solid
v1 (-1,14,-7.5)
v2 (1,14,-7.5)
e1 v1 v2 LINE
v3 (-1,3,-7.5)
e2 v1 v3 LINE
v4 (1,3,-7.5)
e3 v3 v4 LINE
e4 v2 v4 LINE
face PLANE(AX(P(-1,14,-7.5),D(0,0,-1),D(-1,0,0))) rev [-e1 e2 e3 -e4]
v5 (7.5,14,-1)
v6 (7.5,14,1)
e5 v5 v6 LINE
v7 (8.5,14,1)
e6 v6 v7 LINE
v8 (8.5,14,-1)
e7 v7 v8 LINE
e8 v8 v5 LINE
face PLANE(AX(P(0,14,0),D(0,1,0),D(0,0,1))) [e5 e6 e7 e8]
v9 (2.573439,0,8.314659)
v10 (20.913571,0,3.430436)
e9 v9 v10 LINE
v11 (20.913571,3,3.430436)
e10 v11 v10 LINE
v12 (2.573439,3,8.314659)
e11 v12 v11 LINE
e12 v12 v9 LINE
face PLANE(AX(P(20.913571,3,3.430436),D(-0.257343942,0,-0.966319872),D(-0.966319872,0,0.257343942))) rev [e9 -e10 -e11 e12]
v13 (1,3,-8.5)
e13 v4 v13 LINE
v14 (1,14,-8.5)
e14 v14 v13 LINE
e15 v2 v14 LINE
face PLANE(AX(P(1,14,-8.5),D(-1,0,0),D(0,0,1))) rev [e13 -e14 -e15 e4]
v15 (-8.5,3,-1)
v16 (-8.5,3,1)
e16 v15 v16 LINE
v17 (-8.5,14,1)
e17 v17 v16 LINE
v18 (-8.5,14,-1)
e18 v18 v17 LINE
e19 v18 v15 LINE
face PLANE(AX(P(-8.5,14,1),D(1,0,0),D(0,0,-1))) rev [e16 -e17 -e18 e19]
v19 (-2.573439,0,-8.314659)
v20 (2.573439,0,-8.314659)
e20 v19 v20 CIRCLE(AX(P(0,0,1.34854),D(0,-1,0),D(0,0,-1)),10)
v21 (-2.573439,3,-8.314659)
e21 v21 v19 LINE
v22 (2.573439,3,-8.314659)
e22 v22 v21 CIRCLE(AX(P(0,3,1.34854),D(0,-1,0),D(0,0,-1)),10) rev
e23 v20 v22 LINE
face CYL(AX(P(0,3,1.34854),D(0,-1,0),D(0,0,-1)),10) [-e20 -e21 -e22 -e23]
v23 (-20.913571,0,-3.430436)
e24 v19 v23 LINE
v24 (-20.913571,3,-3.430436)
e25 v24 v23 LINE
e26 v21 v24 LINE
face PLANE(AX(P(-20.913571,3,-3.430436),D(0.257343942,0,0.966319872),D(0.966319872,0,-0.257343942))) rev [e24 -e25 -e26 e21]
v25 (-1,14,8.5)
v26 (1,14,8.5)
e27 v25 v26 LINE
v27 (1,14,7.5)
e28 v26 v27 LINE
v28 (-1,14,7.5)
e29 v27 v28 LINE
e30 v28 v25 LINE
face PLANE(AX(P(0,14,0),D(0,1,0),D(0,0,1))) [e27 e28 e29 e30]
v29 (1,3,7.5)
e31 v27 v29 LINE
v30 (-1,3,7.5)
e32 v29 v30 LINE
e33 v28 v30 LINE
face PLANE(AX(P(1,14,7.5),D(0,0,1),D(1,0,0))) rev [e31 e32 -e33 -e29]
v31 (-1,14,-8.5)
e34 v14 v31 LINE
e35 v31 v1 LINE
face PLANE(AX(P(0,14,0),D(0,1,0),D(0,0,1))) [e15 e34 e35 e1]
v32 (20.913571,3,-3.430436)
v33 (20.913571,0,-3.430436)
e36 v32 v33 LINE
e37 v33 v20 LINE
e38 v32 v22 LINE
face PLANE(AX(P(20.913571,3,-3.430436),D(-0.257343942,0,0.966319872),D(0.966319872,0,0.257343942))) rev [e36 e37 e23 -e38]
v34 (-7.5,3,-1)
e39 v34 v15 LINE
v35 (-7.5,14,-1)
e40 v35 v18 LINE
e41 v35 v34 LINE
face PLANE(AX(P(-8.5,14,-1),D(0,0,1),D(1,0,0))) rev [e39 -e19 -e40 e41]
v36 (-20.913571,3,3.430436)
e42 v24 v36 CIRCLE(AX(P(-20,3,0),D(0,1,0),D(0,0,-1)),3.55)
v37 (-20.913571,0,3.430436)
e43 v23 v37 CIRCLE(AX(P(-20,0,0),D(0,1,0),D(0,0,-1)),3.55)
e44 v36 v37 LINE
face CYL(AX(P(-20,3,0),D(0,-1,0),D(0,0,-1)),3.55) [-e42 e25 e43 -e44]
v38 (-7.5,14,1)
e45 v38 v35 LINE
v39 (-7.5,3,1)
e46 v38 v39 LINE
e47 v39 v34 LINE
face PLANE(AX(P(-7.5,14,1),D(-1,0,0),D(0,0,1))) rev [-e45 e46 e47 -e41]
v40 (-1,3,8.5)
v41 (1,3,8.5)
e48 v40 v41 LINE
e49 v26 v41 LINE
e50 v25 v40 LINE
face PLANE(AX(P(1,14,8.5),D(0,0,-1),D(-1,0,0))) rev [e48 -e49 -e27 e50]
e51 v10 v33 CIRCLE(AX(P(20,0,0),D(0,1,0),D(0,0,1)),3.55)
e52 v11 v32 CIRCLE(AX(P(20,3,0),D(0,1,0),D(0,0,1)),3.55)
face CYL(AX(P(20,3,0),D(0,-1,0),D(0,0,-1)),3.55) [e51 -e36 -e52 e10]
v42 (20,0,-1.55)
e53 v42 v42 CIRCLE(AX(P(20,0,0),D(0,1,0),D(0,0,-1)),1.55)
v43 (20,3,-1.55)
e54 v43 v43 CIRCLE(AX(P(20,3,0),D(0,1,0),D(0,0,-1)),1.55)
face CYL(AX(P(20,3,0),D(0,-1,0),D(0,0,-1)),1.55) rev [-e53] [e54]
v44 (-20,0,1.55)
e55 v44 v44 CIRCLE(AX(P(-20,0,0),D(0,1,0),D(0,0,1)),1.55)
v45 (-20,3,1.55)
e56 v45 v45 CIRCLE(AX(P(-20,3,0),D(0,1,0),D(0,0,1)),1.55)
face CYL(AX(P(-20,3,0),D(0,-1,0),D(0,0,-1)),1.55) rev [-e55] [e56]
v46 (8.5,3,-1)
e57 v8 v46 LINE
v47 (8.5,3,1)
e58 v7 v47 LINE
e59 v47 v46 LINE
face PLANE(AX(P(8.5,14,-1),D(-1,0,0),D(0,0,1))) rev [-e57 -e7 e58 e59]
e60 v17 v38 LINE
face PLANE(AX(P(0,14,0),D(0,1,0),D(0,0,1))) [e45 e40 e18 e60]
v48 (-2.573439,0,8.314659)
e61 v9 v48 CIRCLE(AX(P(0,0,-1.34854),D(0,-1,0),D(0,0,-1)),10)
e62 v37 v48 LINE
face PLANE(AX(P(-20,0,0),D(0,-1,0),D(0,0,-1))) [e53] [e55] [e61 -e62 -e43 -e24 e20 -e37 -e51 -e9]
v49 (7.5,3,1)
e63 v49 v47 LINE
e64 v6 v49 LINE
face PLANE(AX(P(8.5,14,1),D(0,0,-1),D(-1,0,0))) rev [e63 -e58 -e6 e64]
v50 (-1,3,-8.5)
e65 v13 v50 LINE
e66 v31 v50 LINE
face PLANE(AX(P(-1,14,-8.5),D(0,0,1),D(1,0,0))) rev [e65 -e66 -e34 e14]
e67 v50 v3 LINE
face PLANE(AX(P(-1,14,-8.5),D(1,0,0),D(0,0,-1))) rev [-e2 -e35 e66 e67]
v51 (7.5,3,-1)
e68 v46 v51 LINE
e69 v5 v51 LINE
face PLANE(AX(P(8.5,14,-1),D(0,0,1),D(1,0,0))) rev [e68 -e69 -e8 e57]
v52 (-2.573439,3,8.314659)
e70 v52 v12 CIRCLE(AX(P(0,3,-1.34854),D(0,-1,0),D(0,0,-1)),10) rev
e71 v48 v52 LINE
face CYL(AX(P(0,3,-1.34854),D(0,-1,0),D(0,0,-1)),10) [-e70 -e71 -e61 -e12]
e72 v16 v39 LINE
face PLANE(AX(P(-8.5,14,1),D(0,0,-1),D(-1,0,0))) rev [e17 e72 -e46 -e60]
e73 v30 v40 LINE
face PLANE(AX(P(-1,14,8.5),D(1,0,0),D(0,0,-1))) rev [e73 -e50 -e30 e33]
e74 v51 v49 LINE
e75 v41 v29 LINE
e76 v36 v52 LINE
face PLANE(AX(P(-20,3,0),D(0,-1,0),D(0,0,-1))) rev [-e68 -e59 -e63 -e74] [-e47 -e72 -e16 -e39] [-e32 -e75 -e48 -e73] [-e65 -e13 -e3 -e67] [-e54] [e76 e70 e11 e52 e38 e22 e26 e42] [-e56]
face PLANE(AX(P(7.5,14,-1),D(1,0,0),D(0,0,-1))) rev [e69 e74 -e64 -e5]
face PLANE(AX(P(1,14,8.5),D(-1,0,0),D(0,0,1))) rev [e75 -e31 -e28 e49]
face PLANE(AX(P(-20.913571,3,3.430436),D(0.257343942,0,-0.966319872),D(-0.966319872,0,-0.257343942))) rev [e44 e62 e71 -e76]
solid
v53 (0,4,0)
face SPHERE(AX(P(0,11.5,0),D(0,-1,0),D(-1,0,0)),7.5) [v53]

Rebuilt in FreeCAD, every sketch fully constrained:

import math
import FreeCAD as App
import Part
import Sketcher
from FreeCAD import Vector


def edges_at(feature, points):
    """Names of the edges that pass closest to the given points."""
    edges = feature.Shape.Edges
    near = lambda p: min(range(len(edges)), key=lambda i: edges[i].distToShape(Part.Vertex(*p))[0])
    return sorted({f"Edge{near(p) + 1}" for p in points})

doc = App.newDocument("Part")
params = doc.addObject("Spreadsheet::Sheet", "Params")
for row, (alias, value) in enumerate([
    ("sketch1_diameter", "3.1 mm"),
    ("sketch1_radius", "3.55 mm"),
    ("pad1_length", "3 mm"),
    ("fillet_radius", "10 mm"),
    ("sketch2_width", "2 mm"),
    ("sketch2_width2", "1 mm"),
    ("pad2_length", "11 mm"),
    ("sketch3_radius", "7.5 mm"),
    ("revolution_angle", "360 deg"),
], start=1):
    params.set(f"A{row}", alias)
    params.set(f"B{row}", "=" + value)
    params.setAlias(f"B{row}", alias)

body = doc.addObject("PartDesign::Body", "Body")

sketch1 = doc.addObject("Sketcher::SketchObject", "Sketch")
body.addObject(sketch1)
sketch1.AttachmentSupport = (doc.XZ_Plane, [""])
sketch1.MapMode = "FlatFace"
sketch1.addGeometry([
    Part.LineSegment(Vector(0, -9, 0), Vector(-20.9, -3.4, 0)),
    Part.ArcOfCircle(Part.Circle(Vector(-20, 0, 0), Vector(0, 0, 1), 3.5), math.radians(105), math.radians(255)),
    Part.LineSegment(Vector(-20.9, 3.4, 0), Vector(0, 9, 0)),
    Part.LineSegment(Vector(0, 9, 0), Vector(20.9, 3.4, 0)),
    Part.ArcOfCircle(Part.Circle(Vector(20, 0, 0), Vector(0, 0, 1), 3.5), math.radians(-75), math.radians(75)),
    Part.LineSegment(Vector(20.9, -3.4, 0), Vector(0, -9, 0)),
    Part.Circle(Vector(20, 0, 0), Vector(0, 0, 1), 1.6),
    Part.Circle(Vector(-20, 0, 0), Vector(0, 0, 1), 1.6),
], False)
sketch1.addConstraint([
    Sketcher.Constraint("Tangent", 0, 2, 1, 2),
    Sketcher.Constraint("Tangent", 1, 1, 2, 1),
    Sketcher.Constraint("Coincident", 2, 2, 3, 1),
    Sketcher.Constraint("Tangent", 3, 2, 4, 2),
    Sketcher.Constraint("Tangent", 4, 1, 5, 1),
    Sketcher.Constraint("Coincident", 5, 2, 0, 1),
    Sketcher.Constraint("Coincident", 6, 3, 4, 3),
    Sketcher.Constraint("Coincident", 7, 3, 1, 3),
    Sketcher.Constraint("Equal", 1, 4),
    Sketcher.Constraint("Equal", 6, 7),
    Sketcher.Constraint("Symmetric", 1, 3, 4, 3, -1, 1),
    Sketcher.Constraint("Symmetric", 2, 2, 5, 2, -1, 1),
    Sketcher.Constraint("Symmetric", 1, 1, 3, 2, -2),
    Sketcher.Constraint("Diameter", 6, 3.1),
    Sketcher.Constraint("Radius", 1, 3.55),
    Sketcher.Constraint("DistanceX", 1, 3, -1, 1, 20.0),
    Sketcher.Constraint("DistanceY", -1, 1, 2, 2, 9.0),
])
sketch1.setExpression("Constraints[13]", "Params.sketch1_diameter")
sketch1.setExpression("Constraints[14]", "Params.sketch1_radius")
pad1 = doc.addObject("PartDesign::Pad", "Pad")
body.addObject(pad1)
pad1.Profile = sketch1
pad1.setExpression("Length", "Params.pad1_length")
pad1.Reversed = True
doc.recompute()

fillet = doc.addObject("PartDesign::Fillet", "Fillet")
body.addObject(fillet)
fillet.Base = (pad1, edges_at(pad1, [(0, 1.5, -9), (0, 1.5, 9)]))
fillet.setExpression("Radius", "Params.fillet_radius")

sketch2 = doc.addObject("Sketcher::SketchObject", "Sketch001")
body.addObject(sketch2)
sketch2.AttachmentSupport = (doc.XZ_Plane, [""])
sketch2.MapMode = "FlatFace"
sketch2.AttachmentOffset = App.Placement(Vector(0, 0, -3), App.Rotation())
sketch2.addGeometry([
    Part.LineSegment(Vector(-1, -8.5, 0), Vector(-1, -7.5, 0)),
    Part.LineSegment(Vector(-1, -7.5, 0), Vector(1, -7.5, 0)),
    Part.LineSegment(Vector(1, -7.5, 0), Vector(1, -8.5, 0)),
    Part.LineSegment(Vector(1, -8.5, 0), Vector(-1, -8.5, 0)),
    Part.LineSegment(Vector(7.5, -1, 0), Vector(7.5, 1, 0)),
    Part.LineSegment(Vector(7.5, 1, 0), Vector(8.5, 1, 0)),
    Part.LineSegment(Vector(8.5, 1, 0), Vector(8.5, -1, 0)),
    Part.LineSegment(Vector(8.5, -1, 0), Vector(7.5, -1, 0)),
    Part.LineSegment(Vector(-1, 7.5, 0), Vector(-1, 8.5, 0)),
    Part.LineSegment(Vector(-1, 8.5, 0), Vector(1, 8.5, 0)),
    Part.LineSegment(Vector(1, 8.5, 0), Vector(1, 7.5, 0)),
    Part.LineSegment(Vector(1, 7.5, 0), Vector(-1, 7.5, 0)),
    Part.LineSegment(Vector(-8.5, -1, 0), Vector(-8.5, 1, 0)),
    Part.LineSegment(Vector(-8.5, 1, 0), Vector(-7.5, 1, 0)),
    Part.LineSegment(Vector(-7.5, 1, 0), Vector(-7.5, -1, 0)),
    Part.LineSegment(Vector(-7.5, -1, 0), Vector(-8.5, -1, 0)),
], False)
sketch2.addConstraint([
    Sketcher.Constraint("Coincident", 0, 2, 1, 1),
    Sketcher.Constraint("Coincident", 1, 2, 2, 1),
    Sketcher.Constraint("Coincident", 2, 2, 3, 1),
    Sketcher.Constraint("Coincident", 3, 2, 0, 1),
    Sketcher.Constraint("Coincident", 4, 2, 5, 1),
    Sketcher.Constraint("Coincident", 5, 2, 6, 1),
    Sketcher.Constraint("Coincident", 6, 2, 7, 1),
    Sketcher.Constraint("Coincident", 7, 2, 4, 1),
    Sketcher.Constraint("Coincident", 8, 2, 9, 1),
    Sketcher.Constraint("Coincident", 9, 2, 10, 1),
    Sketcher.Constraint("Coincident", 10, 2, 11, 1),
    Sketcher.Constraint("Coincident", 11, 2, 8, 1),
    Sketcher.Constraint("Coincident", 12, 2, 13, 1),
    Sketcher.Constraint("Coincident", 13, 2, 14, 1),
    Sketcher.Constraint("Coincident", 14, 2, 15, 1),
    Sketcher.Constraint("Coincident", 15, 2, 12, 1),
    Sketcher.Constraint("Vertical", 0),
    Sketcher.Constraint("Horizontal", 1),
    Sketcher.Constraint("Vertical", 2),
    Sketcher.Constraint("Horizontal", 3),
    Sketcher.Constraint("Vertical", 4),
    Sketcher.Constraint("Horizontal", 5),
    Sketcher.Constraint("Vertical", 6),
    Sketcher.Constraint("Horizontal", 7),
    Sketcher.Constraint("Vertical", 8),
    Sketcher.Constraint("Horizontal", 9),
    Sketcher.Constraint("Vertical", 10),
    Sketcher.Constraint("Horizontal", 11),
    Sketcher.Constraint("Vertical", 12),
    Sketcher.Constraint("Horizontal", 13),
    Sketcher.Constraint("Vertical", 14),
    Sketcher.Constraint("Horizontal", 15),
    Sketcher.Constraint("Symmetric", 2, 2, 8, 2, -1, 1),
    Sketcher.Constraint("Symmetric", 0, 2, 10, 2, -1, 1),
    Sketcher.Constraint("Symmetric", 6, 2, 12, 2, -1, 1),
    Sketcher.Constraint("Symmetric", 4, 2, 14, 2, -1, 1),
    Sketcher.Constraint("Horizontal", 5, 2, 12, 2),
    Sketcher.Constraint("Vertical", 3, 2, 8, 2),
    Sketcher.Constraint("Equal", 15, 0),
    Sketcher.Constraint("Equal", 11, 4),
    Sketcher.Constraint("DistanceX", 1, 1, 1, 2, 2.0),
    Sketcher.Constraint("DistanceX", 5, 1, 5, 2, 1.0),
    Sketcher.Constraint("DistanceY", 0, 2, 8, 2, 16.0),
    Sketcher.Constraint("DistanceX", -1, 1, 4, 2, 7.5),
])
sketch2.setExpression("Constraints[40]", "Params.sketch2_width")
sketch2.setExpression("Constraints[41]", "Params.sketch2_width2")
pad2 = doc.addObject("PartDesign::Pad", "Pad001")
body.addObject(pad2)
pad2.Profile = sketch2
pad2.setExpression("Length", "Params.pad2_length")
pad2.Reversed = True
body2 = doc.addObject("PartDesign::Body", "Body001")

sketch3 = doc.addObject("Sketcher::SketchObject", "Sketch002")
body2.addObject(sketch3)
sketch3.AttachmentSupport = (doc.getObject("XY_Plane001"), [""])
sketch3.MapMode = "FlatFace"
sketch3.addGeometry([
    Part.LineSegment(Vector(0, 4, 0), Vector(0, 19, 0)),
    Part.ArcOfCircle(Part.Circle(Vector(0, 12, 0), Vector(0, 0, 1), 8), math.radians(90), math.radians(270)),
], False)
sketch3.addConstraint([
    Sketcher.Constraint("Coincident", 0, 1, 1, 2),
    Sketcher.Constraint("Coincident", 1, 1, 0, 2),
    Sketcher.Constraint("Vertical", 0),
    Sketcher.Constraint("PointOnObject", 1, 3, -2),
    Sketcher.Constraint("PointOnObject", 0, 1, -2),
    Sketcher.Constraint("Radius", 1, 7.5),
    Sketcher.Constraint("DistanceY", -1, 1, 0, 1, 4.0),
])
sketch3.setExpression("Constraints[5]", "Params.sketch3_radius")
revolution = doc.addObject("PartDesign::Revolution", "Revolution")
body2.addObject(revolution)
revolution.Profile = sketch3
revolution.ReferenceAxis = (sketch3, ["V_Axis"])
revolution.setExpression("Angle", "Params.revolution_angle")

doc.recompute()
